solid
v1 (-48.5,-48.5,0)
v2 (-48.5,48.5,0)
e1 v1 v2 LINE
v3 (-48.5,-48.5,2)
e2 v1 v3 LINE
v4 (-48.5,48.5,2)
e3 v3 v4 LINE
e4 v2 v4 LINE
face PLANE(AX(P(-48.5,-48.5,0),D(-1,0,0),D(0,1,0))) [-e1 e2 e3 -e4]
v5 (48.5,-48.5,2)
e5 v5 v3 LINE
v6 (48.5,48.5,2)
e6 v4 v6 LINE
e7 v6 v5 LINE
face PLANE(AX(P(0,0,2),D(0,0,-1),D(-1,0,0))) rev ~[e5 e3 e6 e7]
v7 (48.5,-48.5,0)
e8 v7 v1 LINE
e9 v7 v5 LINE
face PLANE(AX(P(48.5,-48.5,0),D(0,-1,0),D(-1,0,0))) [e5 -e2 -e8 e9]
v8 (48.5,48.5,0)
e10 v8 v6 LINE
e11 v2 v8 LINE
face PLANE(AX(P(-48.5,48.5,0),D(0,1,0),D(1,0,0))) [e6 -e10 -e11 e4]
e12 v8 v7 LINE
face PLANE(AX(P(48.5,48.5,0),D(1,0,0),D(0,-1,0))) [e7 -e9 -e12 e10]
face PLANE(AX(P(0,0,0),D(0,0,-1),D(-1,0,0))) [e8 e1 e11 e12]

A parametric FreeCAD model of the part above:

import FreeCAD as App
import Part
import Sketcher

doc = App.newDocument("Part")
body = doc.addObject("PartDesign::Body", "Body")

# Sketch on XY plane
sketch1 = body.newObject("Sketcher::SketchObject", "Sketch")
sketch1.AttachmentSupport = (doc.getObject("XY_Plane"), [""])
sketch1.MapMode = "FlatFace"
sketch1.addGeometry([
    Part.LineSegment(App.Vector(-48, -48, 0), App.Vector(48, -48, 0)),
    Part.LineSegment(App.Vector(48, -48, 0), App.Vector(48, 48, 0)),
    Part.LineSegment(App.Vector(48, 48, 0), App.Vector(-48, 48, 0)),
    Part.LineSegment(App.Vector(-48, 48, 0), App.Vector(-48, -48, 0)),
], False)
sketch1.addConstraint([
    Sketcher.Constraint("Coincident", 0, 2, 1, 1),
    Sketcher.Constraint("Coincident", 1, 2, 2, 1),
    Sketcher.Constraint("Coincident", 2, 2, 3, 1),
    Sketcher.Constraint("Coincident", 3, 2, 0, 1),
    Sketcher.Constraint("Horizontal", 0),
    Sketcher.Constraint("Vertical", 1),
    Sketcher.Constraint("Horizontal", 2),
    Sketcher.Constraint("Vertical", 3),
    Sketcher.Constraint("Symmetric", 0, 2, 2, 2, -1, 1),
    Sketcher.Constraint("Equal", 2, 1),
    Sketcher.Constraint("DistanceX", -1, 1, 0, 2, 48.5),
])
pad1 = body.newObject("PartDesign::Pad", "Pad")
pad1.Profile = sketch1
pad1.Length = 2

doc.recompute()
